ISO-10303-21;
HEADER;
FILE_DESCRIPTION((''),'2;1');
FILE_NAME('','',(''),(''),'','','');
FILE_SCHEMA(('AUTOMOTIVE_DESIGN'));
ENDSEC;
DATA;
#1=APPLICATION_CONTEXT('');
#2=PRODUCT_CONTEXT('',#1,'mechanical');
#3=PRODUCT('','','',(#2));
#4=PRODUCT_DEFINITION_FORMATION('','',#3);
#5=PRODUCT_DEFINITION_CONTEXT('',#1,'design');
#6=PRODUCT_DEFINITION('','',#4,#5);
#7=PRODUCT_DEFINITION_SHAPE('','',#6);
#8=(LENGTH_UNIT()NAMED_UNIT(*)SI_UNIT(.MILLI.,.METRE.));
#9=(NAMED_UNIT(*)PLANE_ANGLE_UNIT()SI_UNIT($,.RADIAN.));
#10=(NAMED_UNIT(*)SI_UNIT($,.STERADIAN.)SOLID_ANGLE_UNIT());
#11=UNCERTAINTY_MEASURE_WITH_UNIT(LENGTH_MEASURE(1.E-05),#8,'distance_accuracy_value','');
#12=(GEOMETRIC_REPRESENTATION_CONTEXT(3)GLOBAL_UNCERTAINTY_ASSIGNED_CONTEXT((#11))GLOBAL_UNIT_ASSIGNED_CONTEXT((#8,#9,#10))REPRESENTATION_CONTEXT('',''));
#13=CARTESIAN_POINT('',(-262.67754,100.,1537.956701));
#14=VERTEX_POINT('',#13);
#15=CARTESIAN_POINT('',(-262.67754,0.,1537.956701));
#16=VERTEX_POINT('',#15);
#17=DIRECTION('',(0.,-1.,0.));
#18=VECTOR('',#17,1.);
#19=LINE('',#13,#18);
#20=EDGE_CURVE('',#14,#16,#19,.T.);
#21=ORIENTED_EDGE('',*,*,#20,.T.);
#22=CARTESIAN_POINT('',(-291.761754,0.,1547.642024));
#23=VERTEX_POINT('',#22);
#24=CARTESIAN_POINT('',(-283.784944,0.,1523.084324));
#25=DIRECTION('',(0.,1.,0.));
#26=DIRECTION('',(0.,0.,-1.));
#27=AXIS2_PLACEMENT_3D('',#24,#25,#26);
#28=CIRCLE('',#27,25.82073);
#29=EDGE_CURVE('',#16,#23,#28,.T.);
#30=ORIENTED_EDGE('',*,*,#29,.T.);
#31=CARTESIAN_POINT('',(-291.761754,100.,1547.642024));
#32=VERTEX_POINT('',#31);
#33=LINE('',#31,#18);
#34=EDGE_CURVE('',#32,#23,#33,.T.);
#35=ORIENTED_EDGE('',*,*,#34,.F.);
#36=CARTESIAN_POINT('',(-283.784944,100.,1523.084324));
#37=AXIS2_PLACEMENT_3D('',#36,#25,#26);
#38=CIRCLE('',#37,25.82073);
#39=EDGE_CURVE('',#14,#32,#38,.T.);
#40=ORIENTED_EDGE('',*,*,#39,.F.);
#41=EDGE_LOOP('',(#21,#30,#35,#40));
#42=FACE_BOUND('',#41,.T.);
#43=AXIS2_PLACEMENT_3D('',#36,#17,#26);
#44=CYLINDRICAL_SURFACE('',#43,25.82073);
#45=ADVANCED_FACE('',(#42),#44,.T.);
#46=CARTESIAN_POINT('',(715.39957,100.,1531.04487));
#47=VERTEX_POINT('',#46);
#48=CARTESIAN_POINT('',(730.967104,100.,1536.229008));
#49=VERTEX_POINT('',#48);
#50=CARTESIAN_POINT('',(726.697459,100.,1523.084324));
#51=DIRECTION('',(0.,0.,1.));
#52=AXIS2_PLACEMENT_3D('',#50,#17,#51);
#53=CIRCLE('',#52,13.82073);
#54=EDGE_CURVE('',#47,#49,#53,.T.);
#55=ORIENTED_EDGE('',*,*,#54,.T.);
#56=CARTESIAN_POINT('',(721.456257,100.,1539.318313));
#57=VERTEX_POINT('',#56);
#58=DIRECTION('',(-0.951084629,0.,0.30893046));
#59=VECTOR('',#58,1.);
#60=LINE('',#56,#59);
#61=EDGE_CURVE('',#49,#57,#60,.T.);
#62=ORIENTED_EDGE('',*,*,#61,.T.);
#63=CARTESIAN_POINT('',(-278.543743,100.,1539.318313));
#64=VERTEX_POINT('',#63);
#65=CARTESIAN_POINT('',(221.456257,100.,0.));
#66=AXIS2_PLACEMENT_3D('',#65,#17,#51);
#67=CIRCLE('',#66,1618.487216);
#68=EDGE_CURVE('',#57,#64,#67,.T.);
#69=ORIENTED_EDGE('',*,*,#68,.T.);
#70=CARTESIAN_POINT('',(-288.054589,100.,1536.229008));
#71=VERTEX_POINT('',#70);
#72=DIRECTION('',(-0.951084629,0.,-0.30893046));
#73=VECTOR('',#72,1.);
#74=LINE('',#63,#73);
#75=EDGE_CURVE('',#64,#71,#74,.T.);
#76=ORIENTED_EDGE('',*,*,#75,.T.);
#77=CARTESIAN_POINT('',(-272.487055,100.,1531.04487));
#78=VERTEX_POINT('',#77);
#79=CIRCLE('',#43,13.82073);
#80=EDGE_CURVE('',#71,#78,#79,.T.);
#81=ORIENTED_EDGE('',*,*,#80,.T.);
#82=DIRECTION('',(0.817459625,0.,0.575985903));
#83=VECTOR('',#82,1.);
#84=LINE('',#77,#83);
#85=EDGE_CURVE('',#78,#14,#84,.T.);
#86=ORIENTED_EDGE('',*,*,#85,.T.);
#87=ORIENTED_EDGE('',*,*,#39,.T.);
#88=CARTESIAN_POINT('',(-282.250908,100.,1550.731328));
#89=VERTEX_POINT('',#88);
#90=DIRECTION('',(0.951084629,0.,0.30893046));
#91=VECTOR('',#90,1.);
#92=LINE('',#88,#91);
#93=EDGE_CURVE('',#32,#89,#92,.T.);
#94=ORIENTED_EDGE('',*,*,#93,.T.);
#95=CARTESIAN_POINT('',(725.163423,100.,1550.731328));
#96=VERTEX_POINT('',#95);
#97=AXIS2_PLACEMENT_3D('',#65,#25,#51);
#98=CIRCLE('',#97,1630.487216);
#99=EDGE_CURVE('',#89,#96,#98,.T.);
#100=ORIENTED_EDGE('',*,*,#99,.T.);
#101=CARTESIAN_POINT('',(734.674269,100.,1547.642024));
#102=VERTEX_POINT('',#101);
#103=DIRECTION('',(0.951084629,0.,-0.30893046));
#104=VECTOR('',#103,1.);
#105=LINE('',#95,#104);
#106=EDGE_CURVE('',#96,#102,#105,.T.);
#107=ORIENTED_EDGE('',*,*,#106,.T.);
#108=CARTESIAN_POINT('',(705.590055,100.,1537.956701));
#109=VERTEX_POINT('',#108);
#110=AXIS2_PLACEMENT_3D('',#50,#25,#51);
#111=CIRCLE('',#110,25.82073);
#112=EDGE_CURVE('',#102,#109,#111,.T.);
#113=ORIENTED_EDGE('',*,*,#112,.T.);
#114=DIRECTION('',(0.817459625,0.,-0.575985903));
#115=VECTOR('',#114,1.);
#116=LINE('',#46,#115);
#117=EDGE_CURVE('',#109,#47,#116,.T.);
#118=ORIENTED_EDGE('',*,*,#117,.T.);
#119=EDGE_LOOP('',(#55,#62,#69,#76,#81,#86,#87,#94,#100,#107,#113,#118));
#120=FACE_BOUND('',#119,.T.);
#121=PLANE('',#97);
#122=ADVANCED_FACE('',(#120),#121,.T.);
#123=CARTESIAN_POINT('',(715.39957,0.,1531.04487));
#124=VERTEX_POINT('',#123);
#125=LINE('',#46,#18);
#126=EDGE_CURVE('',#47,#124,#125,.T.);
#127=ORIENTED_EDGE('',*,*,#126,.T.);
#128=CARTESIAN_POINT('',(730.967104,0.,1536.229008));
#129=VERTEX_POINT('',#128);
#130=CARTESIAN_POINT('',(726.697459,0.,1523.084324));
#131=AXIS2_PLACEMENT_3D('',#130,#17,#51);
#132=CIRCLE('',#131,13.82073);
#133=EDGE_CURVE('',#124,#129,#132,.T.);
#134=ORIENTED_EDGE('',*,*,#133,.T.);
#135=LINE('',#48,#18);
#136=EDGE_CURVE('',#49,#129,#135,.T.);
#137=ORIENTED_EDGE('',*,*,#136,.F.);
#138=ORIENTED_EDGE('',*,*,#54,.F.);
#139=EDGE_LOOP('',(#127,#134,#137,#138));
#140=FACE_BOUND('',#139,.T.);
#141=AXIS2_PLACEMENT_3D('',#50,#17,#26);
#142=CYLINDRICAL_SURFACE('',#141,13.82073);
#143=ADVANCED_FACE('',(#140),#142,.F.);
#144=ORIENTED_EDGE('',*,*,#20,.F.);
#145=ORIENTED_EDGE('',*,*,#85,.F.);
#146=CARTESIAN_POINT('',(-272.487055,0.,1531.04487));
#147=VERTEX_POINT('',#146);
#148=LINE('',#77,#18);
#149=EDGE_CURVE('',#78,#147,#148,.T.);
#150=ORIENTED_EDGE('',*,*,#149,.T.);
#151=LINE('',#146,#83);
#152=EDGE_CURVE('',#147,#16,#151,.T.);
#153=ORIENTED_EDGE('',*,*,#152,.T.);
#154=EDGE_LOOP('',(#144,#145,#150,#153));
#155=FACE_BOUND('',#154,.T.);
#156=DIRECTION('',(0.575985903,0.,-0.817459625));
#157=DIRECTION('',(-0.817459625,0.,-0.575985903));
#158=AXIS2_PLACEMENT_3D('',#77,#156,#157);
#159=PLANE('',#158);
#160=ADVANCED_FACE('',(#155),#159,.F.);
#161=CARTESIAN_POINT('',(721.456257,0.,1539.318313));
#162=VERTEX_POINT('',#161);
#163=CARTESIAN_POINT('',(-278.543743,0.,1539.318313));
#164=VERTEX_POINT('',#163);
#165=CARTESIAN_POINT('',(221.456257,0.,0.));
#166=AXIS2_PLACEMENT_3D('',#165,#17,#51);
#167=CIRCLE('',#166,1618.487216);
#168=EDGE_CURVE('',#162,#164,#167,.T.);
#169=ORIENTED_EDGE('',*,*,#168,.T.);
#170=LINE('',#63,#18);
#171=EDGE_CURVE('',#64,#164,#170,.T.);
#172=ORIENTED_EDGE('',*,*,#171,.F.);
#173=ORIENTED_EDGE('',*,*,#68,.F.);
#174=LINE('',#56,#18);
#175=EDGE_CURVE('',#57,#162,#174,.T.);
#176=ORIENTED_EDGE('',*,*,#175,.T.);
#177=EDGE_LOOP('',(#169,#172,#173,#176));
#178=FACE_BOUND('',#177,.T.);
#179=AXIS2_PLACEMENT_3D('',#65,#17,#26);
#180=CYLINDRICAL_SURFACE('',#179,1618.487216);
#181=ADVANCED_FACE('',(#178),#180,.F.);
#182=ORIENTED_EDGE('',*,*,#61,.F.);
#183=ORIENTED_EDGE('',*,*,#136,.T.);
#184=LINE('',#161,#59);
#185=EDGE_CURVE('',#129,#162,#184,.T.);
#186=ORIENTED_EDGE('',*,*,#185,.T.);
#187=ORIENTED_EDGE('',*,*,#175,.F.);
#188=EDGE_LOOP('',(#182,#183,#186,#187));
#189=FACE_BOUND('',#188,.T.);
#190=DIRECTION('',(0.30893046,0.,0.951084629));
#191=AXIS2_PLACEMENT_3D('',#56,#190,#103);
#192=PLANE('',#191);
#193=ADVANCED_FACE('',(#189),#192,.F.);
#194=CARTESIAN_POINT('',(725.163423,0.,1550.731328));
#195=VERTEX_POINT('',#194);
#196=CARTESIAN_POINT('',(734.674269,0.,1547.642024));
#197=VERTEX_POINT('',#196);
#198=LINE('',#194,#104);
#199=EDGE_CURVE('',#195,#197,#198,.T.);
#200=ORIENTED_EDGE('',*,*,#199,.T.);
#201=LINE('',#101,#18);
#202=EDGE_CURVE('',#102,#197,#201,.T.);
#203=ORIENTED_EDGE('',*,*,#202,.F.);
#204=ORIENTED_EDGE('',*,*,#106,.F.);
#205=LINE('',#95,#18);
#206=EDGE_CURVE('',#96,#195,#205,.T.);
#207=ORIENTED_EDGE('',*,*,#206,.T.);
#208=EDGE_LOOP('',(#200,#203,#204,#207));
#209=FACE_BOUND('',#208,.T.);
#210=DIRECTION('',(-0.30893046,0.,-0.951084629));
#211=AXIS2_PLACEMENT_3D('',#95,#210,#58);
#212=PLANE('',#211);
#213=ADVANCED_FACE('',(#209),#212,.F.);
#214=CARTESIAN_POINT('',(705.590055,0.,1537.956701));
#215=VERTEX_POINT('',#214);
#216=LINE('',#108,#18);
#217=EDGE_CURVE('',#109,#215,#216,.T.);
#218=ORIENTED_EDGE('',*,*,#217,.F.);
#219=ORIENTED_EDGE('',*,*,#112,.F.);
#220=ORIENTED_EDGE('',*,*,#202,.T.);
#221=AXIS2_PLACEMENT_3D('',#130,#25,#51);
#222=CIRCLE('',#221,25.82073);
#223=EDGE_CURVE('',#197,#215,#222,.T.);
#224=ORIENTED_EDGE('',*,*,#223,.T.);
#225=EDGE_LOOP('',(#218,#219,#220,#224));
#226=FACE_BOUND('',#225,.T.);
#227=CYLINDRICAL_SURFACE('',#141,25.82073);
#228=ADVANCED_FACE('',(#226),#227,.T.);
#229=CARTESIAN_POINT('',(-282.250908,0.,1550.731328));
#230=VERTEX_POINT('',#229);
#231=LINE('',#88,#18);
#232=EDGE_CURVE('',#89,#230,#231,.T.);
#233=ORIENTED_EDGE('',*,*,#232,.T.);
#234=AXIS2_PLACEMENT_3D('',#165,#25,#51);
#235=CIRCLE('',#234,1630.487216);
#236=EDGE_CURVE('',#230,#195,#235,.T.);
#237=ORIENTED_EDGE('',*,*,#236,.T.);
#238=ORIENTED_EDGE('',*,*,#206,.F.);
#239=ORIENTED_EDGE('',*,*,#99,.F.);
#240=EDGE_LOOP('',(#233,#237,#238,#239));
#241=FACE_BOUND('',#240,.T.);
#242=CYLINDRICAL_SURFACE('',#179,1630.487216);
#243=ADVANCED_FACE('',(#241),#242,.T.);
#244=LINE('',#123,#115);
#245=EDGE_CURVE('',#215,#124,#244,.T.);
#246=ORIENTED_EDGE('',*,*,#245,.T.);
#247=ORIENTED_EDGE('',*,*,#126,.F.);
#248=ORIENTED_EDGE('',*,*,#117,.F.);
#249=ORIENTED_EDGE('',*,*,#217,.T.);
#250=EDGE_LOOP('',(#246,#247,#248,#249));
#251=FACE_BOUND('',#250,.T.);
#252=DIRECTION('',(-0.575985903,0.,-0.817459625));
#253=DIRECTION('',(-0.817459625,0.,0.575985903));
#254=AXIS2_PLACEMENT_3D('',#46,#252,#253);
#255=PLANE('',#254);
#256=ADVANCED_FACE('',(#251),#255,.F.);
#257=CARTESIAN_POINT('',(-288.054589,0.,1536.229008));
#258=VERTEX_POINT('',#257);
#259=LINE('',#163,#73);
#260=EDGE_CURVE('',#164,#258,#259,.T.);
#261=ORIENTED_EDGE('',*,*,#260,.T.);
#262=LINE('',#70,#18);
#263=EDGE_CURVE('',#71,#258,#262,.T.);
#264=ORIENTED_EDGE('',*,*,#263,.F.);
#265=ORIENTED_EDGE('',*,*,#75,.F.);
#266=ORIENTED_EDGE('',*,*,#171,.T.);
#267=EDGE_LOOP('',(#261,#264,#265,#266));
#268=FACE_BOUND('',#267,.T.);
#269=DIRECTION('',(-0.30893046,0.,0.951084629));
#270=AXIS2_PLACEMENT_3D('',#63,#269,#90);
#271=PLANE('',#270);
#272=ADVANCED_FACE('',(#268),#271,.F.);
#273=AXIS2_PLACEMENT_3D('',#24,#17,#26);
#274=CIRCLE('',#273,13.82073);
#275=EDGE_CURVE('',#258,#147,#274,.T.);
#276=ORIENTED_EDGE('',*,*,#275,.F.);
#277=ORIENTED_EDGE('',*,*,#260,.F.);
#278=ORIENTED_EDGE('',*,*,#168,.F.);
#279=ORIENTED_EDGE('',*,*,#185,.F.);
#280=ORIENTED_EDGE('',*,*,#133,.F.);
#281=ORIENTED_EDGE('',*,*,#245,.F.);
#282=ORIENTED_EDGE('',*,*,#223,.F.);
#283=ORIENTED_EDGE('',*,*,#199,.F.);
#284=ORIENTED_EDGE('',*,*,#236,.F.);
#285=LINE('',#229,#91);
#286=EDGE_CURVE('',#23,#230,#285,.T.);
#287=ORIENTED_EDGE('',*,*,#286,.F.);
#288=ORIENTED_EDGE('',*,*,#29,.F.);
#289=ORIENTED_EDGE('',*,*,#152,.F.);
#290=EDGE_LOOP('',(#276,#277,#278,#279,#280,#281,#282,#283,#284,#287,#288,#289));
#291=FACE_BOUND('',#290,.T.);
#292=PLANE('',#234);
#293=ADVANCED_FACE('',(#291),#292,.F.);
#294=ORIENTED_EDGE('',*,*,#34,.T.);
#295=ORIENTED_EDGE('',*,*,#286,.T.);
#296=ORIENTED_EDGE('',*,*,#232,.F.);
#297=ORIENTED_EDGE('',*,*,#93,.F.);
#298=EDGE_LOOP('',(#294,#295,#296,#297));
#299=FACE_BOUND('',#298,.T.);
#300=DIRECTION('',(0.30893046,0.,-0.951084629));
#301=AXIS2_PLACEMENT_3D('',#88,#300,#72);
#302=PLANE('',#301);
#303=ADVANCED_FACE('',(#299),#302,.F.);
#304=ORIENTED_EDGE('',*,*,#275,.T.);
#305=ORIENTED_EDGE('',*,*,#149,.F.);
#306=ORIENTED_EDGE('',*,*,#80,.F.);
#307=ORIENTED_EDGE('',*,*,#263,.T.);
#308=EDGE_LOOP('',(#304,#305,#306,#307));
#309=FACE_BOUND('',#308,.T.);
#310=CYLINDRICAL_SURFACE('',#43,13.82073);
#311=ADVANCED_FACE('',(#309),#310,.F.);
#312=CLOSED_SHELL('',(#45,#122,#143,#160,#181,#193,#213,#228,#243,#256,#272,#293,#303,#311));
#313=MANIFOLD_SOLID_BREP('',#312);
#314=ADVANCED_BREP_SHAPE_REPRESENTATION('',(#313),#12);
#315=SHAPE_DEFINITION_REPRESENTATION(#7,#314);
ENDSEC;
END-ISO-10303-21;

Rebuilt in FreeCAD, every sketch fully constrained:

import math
import FreeCAD as App
import Part
import Sketcher

doc = App.newDocument("Part")
body = doc.addObject("PartDesign::Body", "Body")

# Sketch on XZ plane
sketch1 = body.newObject("Sketcher::SketchObject", "Sketch")
sketch1.AttachmentSupport = (doc.getObject("XZ_Plane"), [""])
sketch1.MapMode = "FlatFace"
sketch1.addGeometry([
    Part.LineSegment(App.Vector(730.967104, 1536.229008, 0), App.Vector(721.456257, 1539.318313, 0)),  # 0
    Part.ArcOfCircle(Part.Circle(App.Vector(221.456257, 0, 0), App.Vector(0, 0, 1), 1618.487216), math.radians(72.005213), math.radians(107.994787)),  # 1
    Part.LineSegment(App.Vector(-278.543743, 1539.318313, 0), App.Vector(-288.054589, 1536.229008, 0)),  # 2
    Part.ArcOfCircle(Part.Circle(App.Vector(-283.784944, 1523.084324, 0), App.Vector(0, 0, 1), 13.82073), math.radians(107.994787), math.radians(395.168705)),  # 3
    Part.LineSegment(App.Vector(-272.487055, 1531.04487, 0), App.Vector(-262.67754, 1537.956701, 0)),  # 4
    Part.ArcOfCircle(Part.Circle(App.Vector(-283.784944, 1523.084324, 0), App.Vector(0, 0, 1), 25.82073), math.radians(107.994787), math.radians(395.168705)),  # 5
    Part.LineSegment(App.Vector(-291.761754, 1547.642024, 0), App.Vector(-282.250908, 1550.731328, 0)),  # 6
    Part.ArcOfCircle(Part.Circle(App.Vector(221.456257, 0, 0), App.Vector(0, 0, 1), 1630.487216), math.radians(72.005213), math.radians(107.994787)),  # 7
    Part.LineSegment(App.Vector(725.163423, 1550.731328, 0), App.Vector(734.674269, 1547.642024, 0)),  # 8
    Part.ArcOfCircle(Part.Circle(App.Vector(726.697459, 1523.084324, 0), App.Vector(0, 0, 1), 25.82073), math.radians(144.831295), math.radians(432.005213)),  # 9
    Part.LineSegment(App.Vector(705.590055, 1537.956701, 0), App.Vector(715.39957, 1531.04487, 0)),  # 10
    Part.ArcOfCircle(Part.Circle(App.Vector(726.697459, 1523.084324, 0), App.Vector(0, 0, 1), 13.82073), math.radians(144.831295), math.radians(432.005213)),  # 11
], False)
sketch1.addConstraint([
    Sketcher.Constraint("Tangent", 0, 2, 1, 1),
    Sketcher.Constraint("Tangent", 1, 2, 2, 1),
    Sketcher.Constraint("Tangent", 2, 2, 3, 1),
    Sketcher.Constraint("Coincident", 3, 2, 4, 1),
    Sketcher.Constraint("Coincident", 4, 2, 5, 2),
    Sketcher.Constraint("Tangent", 5, 1, 6, 1),
    Sketcher.Constraint("Tangent", 6, 2, 7, 2),
    Sketcher.Constraint("Tangent", 7, 1, 8, 1),
    Sketcher.Constraint("Tangent", 8, 2, 9, 2),
    Sketcher.Constraint("Coincident", 9, 1, 10, 1),
    Sketcher.Constraint("Coincident", 10, 2, 11, 1),
    Sketcher.Constraint("Tangent", 11, 2, 0, 1),
    Sketcher.Constraint("Coincident", 5, 3, 3, 3),
    Sketcher.Constraint("Coincident", 7, 3, 1, 3),
    Sketcher.Constraint("Coincident", 11, 3, 9, 3),
    Sketcher.Constraint("Equal", 5, 9),
    Sketcher.Constraint("Equal", 3, 11),
    Sketcher.Constraint("PointOnObject", 1, 3, -1),
    Sketcher.Constraint("Parallel", 2, 6),
    Sketcher.Constraint("Horizontal", 5, 3, 9, 3),
    Sketcher.Constraint("Horizontal", 4, 2, 9, 1),
    Sketcher.Constraint("Horizontal", 3, 2, 10, 2),
    Sketcher.Constraint("Equal", 0, 2),
    Sketcher.Constraint("Distance", 0, 10.0),
    Sketcher.Constraint("Distance", 4, 12.0),
    Sketcher.Constraint("DistanceX", 7, 3, 0, 2, 500.0),
    Sketcher.Constraint("Radius", 3, 13.82073),
    Sketcher.Constraint("Radius", 1, 1618.487216),
    Sketcher.Constraint("DistanceY", -1, 1, 4, 2, 1537.956701),
    Sketcher.Constraint("DistanceX", 5, 1, 3, 2, 19.274699),
    Sketcher.Constraint("DistanceX", -1, 1, 9, 3, 726.697459),
])
pad1 = body.newObject("PartDesign::Pad", "Pad")
pad1.Profile = sketch1
pad1.Length = 100
pad1.Reversed = True

doc.recompute()
